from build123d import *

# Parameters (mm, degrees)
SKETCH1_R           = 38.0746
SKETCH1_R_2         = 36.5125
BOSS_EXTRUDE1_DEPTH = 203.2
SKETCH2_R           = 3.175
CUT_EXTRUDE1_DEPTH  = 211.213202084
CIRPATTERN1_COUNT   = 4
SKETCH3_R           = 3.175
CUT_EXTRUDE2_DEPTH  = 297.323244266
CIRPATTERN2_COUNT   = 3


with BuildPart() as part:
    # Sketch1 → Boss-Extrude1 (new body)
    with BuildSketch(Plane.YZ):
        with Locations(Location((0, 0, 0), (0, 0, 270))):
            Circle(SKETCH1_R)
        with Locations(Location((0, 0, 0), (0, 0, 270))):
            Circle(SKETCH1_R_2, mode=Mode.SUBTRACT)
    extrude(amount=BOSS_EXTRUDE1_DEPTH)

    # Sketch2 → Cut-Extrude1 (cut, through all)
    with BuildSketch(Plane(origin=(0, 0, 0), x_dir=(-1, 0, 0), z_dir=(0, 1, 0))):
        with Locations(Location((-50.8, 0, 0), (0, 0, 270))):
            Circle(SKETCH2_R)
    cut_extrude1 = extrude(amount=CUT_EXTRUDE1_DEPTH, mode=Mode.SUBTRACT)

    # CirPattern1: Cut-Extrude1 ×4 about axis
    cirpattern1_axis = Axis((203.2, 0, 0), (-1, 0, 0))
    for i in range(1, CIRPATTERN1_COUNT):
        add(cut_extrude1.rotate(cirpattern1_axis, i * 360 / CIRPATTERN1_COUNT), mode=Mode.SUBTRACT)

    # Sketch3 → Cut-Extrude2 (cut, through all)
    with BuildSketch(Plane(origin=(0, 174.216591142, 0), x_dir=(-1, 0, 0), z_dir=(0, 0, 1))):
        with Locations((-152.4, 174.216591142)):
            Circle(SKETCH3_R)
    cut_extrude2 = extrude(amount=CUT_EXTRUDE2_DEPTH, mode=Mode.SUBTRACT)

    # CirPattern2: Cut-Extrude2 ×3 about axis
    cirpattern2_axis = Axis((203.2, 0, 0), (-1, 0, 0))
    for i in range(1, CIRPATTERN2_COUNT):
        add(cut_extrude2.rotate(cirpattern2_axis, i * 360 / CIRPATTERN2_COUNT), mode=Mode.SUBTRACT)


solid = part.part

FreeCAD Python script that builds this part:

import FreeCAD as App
import Part
import Sketcher

V = App.Vector
Q = App.Units.Quantity

doc = App.newDocument("Part")
body = doc.addObject("PartDesign::Body", "Body")

# Sketch on YZ plane
sketch1 = doc.addObject("Sketcher::SketchObject", "Sketch")
body.addObject(sketch1)
sketch1.AttachmentSupport = (doc.YZ_Plane, [""])
sketch1.MapMode = "FlatFace"
sketch1.addGeometry([
    Part.Circle(V(0, 0, 0), V(0, 0, 1), 38),
    Part.Circle(V(0, 0, 0), V(0, 0, 1), 37),
], False)
sketch1.addConstraint([
    Sketcher.Constraint("Coincident", 0, 3, -1, 1),
    Sketcher.Constraint("Coincident", 1, 3, -1, 1),
    Sketcher.Constraint("Diameter", 0, Q("2.998 in")),
    Sketcher.Constraint("Diameter", 1, Q("2.875 in")),
])
pad1 = doc.addObject("PartDesign::Pad", "Pad")
body.addObject(pad1)
pad1.Profile = sketch1
pad1.Length = Q("8 in")

# Sketch on XZ plane
sketch2 = doc.addObject("Sketcher::SketchObject", "Sketch001")
body.addObject(sketch2)
sketch2.AttachmentSupport = (doc.XZ_Plane, [""])
sketch2.MapMode = "FlatFace"
sketch2.addGeometry(Part.Circle(V(50.8, 0, 0), V(0, 0, 1), 3.2), False)
sketch2.addConstraint([
    Sketcher.Constraint("PointOnObject", 0, 3, -1),
    Sketcher.Constraint("Diameter", 0, Q("0.25 in")),
    Sketcher.Constraint("DistanceX", -1, 1, 0, 3, Q("2 in")),
])
pocket1 = doc.addObject("PartDesign::Pocket", "Pocket")
body.addObject(pocket1)
pocket1.Profile = sketch2
pocket1.Type = "ThroughAll"
doc.recompute()

polarpattern = doc.addObject("PartDesign::PolarPattern", "PolarPattern")
body.addObject(polarpattern)
polarpattern.Originals = [pocket1]
polarpattern.Axis = (doc.X_Axis, [""])
polarpattern.Angle = 360
polarpattern.Occurrences = 4
body.Tip = polarpattern

# Sketch on XY plane
sketch3 = doc.addObject("Sketcher::SketchObject", "Sketch002")
body.addObject(sketch3)
sketch3.AttachmentSupport = (doc.XY_Plane, [""])
sketch3.MapMode = "FlatFace"
sketch3.addGeometry(Part.Circle(V(152.4, 0, 0), V(0, 0, 1), 3.2), False)
sketch3.addConstraint([
    Sketcher.Constraint("PointOnObject", 0, 3, -1),
    Sketcher.Constraint("Diameter", 0, Q("0.25 in")),
    Sketcher.Constraint("DistanceX", -1, 1, 0, 3, Q("6 in")),
])
pocket2 = doc.addObject("PartDesign::Pocket", "Pocket001")
body.addObject(pocket2)
pocket2.Profile = sketch3
pocket2.Type = "ThroughAll"
pocket2.Reversed = True
doc.recompute()

polarpattern2 = doc.addObject("PartDesign::PolarPattern", "PolarPattern001")
body.addObject(polarpattern2)
polarpattern2.Originals = [pocket2]
polarpattern2.Axis = (doc.X_Axis, [""])
polarpattern2.Angle = 360
polarpattern2.Occurrences = 3
body.Tip = polarpattern2

doc.recompute()
